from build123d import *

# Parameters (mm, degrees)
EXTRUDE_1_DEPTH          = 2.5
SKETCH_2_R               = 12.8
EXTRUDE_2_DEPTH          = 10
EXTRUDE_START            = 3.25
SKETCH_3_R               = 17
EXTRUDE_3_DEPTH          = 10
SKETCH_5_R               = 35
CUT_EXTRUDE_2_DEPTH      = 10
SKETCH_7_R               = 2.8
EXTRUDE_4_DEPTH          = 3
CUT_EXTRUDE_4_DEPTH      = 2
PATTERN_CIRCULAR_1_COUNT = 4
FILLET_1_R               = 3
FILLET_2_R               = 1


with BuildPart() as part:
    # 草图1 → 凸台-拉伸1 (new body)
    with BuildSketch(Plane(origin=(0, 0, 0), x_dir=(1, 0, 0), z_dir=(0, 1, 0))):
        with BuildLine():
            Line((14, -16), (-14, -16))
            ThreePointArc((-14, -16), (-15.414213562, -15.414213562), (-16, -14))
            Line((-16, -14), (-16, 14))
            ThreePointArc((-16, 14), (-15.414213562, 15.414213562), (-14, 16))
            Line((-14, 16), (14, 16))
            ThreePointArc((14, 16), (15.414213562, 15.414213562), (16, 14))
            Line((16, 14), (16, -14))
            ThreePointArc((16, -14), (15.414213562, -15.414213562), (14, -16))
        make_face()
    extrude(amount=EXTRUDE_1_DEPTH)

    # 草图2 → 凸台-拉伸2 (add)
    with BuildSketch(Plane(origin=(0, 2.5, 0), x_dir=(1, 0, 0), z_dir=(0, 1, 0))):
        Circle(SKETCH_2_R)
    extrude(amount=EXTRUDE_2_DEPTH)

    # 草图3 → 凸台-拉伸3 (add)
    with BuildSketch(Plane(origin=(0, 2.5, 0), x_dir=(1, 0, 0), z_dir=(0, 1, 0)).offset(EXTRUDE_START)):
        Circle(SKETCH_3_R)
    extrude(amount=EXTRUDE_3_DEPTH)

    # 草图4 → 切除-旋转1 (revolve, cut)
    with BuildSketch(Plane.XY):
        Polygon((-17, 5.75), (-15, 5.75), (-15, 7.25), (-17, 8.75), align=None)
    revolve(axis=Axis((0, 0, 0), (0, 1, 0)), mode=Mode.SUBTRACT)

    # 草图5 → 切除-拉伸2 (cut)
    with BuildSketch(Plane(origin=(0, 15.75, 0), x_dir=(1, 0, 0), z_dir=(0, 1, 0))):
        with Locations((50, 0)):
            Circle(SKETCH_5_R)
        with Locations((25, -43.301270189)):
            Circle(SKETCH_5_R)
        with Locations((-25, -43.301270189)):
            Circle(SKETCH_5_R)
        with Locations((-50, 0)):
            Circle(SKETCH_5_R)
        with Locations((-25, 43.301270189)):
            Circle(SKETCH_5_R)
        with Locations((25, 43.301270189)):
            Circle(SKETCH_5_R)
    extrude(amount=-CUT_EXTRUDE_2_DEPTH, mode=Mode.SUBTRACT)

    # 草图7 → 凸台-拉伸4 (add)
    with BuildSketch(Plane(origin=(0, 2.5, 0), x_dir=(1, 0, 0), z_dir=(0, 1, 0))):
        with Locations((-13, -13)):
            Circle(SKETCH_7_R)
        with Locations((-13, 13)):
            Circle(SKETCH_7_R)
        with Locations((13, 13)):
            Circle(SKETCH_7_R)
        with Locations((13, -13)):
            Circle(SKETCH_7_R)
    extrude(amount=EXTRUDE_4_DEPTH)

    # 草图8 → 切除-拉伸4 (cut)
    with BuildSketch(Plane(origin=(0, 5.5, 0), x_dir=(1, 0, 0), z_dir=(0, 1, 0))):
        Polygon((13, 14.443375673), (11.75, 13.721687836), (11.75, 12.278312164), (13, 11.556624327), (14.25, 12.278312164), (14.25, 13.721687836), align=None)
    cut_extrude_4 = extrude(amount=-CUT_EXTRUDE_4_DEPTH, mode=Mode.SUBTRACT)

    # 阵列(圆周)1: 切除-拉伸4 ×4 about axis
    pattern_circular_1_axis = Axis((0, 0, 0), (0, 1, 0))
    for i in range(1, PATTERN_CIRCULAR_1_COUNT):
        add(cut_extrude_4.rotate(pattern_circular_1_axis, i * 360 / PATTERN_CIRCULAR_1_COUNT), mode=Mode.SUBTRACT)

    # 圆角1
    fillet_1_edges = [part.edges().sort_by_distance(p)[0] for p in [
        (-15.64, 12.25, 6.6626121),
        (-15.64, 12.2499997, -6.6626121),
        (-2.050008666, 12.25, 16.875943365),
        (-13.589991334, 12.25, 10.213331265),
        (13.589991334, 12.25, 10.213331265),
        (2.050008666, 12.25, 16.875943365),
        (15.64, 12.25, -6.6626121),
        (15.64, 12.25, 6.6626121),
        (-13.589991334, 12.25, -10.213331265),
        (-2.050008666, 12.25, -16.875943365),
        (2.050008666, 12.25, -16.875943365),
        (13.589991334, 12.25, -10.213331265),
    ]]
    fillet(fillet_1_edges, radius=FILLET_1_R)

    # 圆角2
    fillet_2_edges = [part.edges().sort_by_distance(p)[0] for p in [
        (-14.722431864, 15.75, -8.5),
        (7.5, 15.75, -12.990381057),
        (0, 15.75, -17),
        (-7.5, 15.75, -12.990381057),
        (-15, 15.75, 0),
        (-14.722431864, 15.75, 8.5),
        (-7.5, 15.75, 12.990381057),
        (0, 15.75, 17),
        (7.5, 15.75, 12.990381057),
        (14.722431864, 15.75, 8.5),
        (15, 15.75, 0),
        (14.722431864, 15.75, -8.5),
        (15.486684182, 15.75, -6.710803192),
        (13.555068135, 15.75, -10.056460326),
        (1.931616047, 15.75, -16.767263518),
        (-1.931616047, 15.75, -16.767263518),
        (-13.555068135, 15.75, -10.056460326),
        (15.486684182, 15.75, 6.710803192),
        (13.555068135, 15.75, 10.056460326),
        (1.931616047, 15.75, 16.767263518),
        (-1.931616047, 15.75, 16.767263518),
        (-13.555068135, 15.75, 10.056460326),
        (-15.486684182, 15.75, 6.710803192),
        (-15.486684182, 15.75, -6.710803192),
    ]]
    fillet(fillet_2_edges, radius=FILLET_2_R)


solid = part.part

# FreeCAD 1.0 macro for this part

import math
import FreeCAD as App
import Part
import Sketcher
Q = App.Units.Quantity


def edges_at(feature, points):
    """Names of the edges that pass closest to the given points."""
    edges = feature.Shape.Edges
    near = lambda p: min(range(len(edges)), key=lambda i: edges[i].distToShape(Part.Vertex(*p))[0])
    return sorted({f"Edge{near(p) + 1}" for p in points})

doc = App.newDocument("Part")
body = doc.addObject("PartDesign::Body", "Body")

# Sketch on XZ plane
sketch1 = doc.addObject("Sketcher::SketchObject", "Sketch")
body.addObject(sketch1)
sketch1.AttachmentSupport = (doc.XZ_Plane, [""])
sketch1.MapMode = "FlatFace"
sketch1.addGeometry([
    Part.LineSegment(App.Vector(-14, 16, 0), App.Vector(14, 16, 0)),  # 0
    Part.ArcOfCircle(Part.Circle(App.Vector(14, 14, 0), App.Vector(0, 0, 1), 2), math.radians(0), math.radians(90)),  # 1
    Part.LineSegment(App.Vector(16, 14, 0), App.Vector(16, -14, 0)),  # 2
    Part.ArcOfCircle(Part.Circle(App.Vector(14, -14, 0), App.Vector(0, 0, 1), 2), math.radians(-90), math.radians(0)),  # 3
    Part.LineSegment(App.Vector(14, -16, 0), App.Vector(-14, -16, 0)),  # 4
    Part.ArcOfCircle(Part.Circle(App.Vector(-14, -14, 0), App.Vector(0, 0, 1), 2), math.radians(-180), math.radians(-90)),  # 5
    Part.LineSegment(App.Vector(-16, -14, 0), App.Vector(-16, 14, 0)),  # 6
    Part.ArcOfCircle(Part.Circle(App.Vector(-14, 14, 0), App.Vector(0, 0, 1), 2), math.radians(90), math.radians(180)),  # 7
], False)
sketch1.addConstraint([
    Sketcher.Constraint("Tangent", 0, 2, 1, 2),
    Sketcher.Constraint("Tangent", 1, 1, 2, 1),
    Sketcher.Constraint("Tangent", 2, 2, 3, 2),
    Sketcher.Constraint("Tangent", 3, 1, 4, 1),
    Sketcher.Constraint("Tangent", 4, 2, 5, 2),
    Sketcher.Constraint("Tangent", 5, 1, 6, 1),
    Sketcher.Constraint("Tangent", 6, 2, 7, 2),
    Sketcher.Constraint("Tangent", 7, 1, 0, 1),
    Sketcher.Constraint("Horizontal", 0),
    Sketcher.Constraint("Vertical", 2),
    Sketcher.Constraint("Horizontal", 4),
    Sketcher.Constraint("Vertical", 6),
    Sketcher.Constraint("Equal", 1, 3),
    Sketcher.Constraint("Equal", 3, 5),
    Sketcher.Constraint("Equal", 5, 7),
    Sketcher.Constraint("Symmetric", 1, 3, 5, 3, -1, 1),
    Sketcher.Constraint("Equal", 4, 2),
    Sketcher.Constraint("Radius", 1, 2.0),
    Sketcher.Constraint("DistanceX", 0, 1, 0, 2, 28.0),
])
pad1 = doc.addObject("PartDesign::Pad", "Pad")
body.addObject(pad1)
pad1.Profile = sketch1
pad1.Length = 2.5
pad1.Reversed = True

# Sketch on XZ plane
sketch2 = doc.addObject("Sketcher::SketchObject", "Sketch001")
body.addObject(sketch2)
sketch2.AttachmentSupport = (doc.XZ_Plane, [""])
sketch2.MapMode = "FlatFace"
sketch2.AttachmentOffset = App.Placement(App.Vector(0, 0, -2.5), App.Rotation())
sketch2.addGeometry(Part.Circle(App.Vector(0, 0, 0), App.Vector(0, 0, 1), 12.8), False)
sketch2.addConstraint([
    Sketcher.Constraint("Coincident", 0, 3, -1, 1),
    Sketcher.Constraint("Diameter", 0, 25.6),
])
pad2 = doc.addObject("PartDesign::Pad", "Pad001")
body.addObject(pad2)
pad2.Profile = sketch2
pad2.Length = 10
pad2.Reversed = True

# Sketch on XZ plane
sketch3 = doc.addObject("Sketcher::SketchObject", "Sketch002")
body.addObject(sketch3)
sketch3.AttachmentSupport = (doc.XZ_Plane, [""])
sketch3.MapMode = "FlatFace"
sketch3.AttachmentOffset = App.Placement(App.Vector(0, 0, -5.75), App.Rotation())
sketch3.addGeometry(Part.Circle(App.Vector(0, 0, 0), App.Vector(0, 0, 1), 17), False)
sketch3.addConstraint([
    Sketcher.Constraint("Coincident", 0, 3, -1, 1),
    Sketcher.Constraint("Diameter", 0, 34.0),
])
pad3 = doc.addObject("PartDesign::Pad", "Pad002")
body.addObject(pad3)
pad3.Profile = sketch3
pad3.Length = 10
pad3.Reversed = True

# Sketch on XY plane
sketch4 = doc.addObject("Sketcher::SketchObject", "Sketch003")
body.addObject(sketch4)
sketch4.AttachmentSupport = (doc.XY_Plane, [""])
sketch4.MapMode = "FlatFace"
sketch4.addGeometry([
    Part.LineSegment(App.Vector(-17, 5.75, 0), App.Vector(-15, 5.75, 0)),
    Part.LineSegment(App.Vector(-15, 5.75, 0), App.Vector(-15, 7.25, 0)),
    Part.LineSegment(App.Vector(-15, 7.25, 0), App.Vector(-17, 8.75, 0)),
    Part.LineSegment(App.Vector(-17, 8.75, 0), App.Vector(-17, 5.75, 0)),
], False)
sketch4.addConstraint([
    Sketcher.Constraint("Coincident", 0, 2, 1, 1),
    Sketcher.Constraint("Coincident", 1, 2, 2, 1),
    Sketcher.Constraint("Coincident", 2, 2, 3, 1),
    Sketcher.Constraint("Coincident", 3, 2, 0, 1),
    Sketcher.Constraint("Horizontal", 0),
    Sketcher.Constraint("Vertical", 1),
    Sketcher.Constraint("Vertical", 3),
    Sketcher.Constraint("DistanceX", 0, 1, 0, 2, 2.0),
    Sketcher.Constraint("DistanceY", 3, 2, 3, 1, 3.0),
    Sketcher.Constraint("DistanceY", 1, 1, 1, 2, 1.5),
    Sketcher.Constraint("DistanceX", 0, 2, -1, 1, 15.0),
    Sketcher.Constraint("DistanceY", -1, 1, 0, 2, 5.75),
])
groove = doc.addObject("PartDesign::Groove", "Groove")
body.addObject(groove)
groove.Profile = sketch4
groove.ReferenceAxis = (sketch4, ["V_Axis"])
groove.Angle = 360

# Sketch on XZ plane
sketch5 = doc.addObject("Sketcher::SketchObject", "Sketch004")
body.addObject(sketch5)
sketch5.AttachmentSupport = (doc.XZ_Plane, [""])
sketch5.MapMode = "FlatFace"
sketch5.AttachmentOffset = App.Placement(App.Vector(0, 0, -15.75), App.Rotation())
sketch5.addGeometry([
    Part.ArcOfCircle(Part.Circle(App.Vector(-25, -43.30127, 0), App.Vector(0, 0, 1), 35), math.radians(164.415309), math.radians(315.584691)),  # 0
    Part.ArcOfCircle(Part.Circle(App.Vector(-50, 0, 0), App.Vector(0, 0, 1), 35), math.radians(104.415309), math.radians(255.584691)),  # 1
    Part.ArcOfCircle(Part.Circle(App.Vector(-25, 43.30127, 0), App.Vector(0, 0, 1), 35), math.radians(44.415309), math.radians(195.584691)),  # 2
    Part.ArcOfCircle(Part.Circle(App.Vector(25, 43.30127, 0), App.Vector(0, 0, 1), 35), math.radians(-15.584691), math.radians(135.584691)),  # 3
    Part.ArcOfCircle(Part.Circle(App.Vector(50, 0, 0), App.Vector(0, 0, 1), 35), math.radians(-75.584691), math.radians(75.584691)),  # 4
    Part.ArcOfCircle(Part.Circle(App.Vector(25, -43.30127, 0), App.Vector(0, 0, 1), 35), math.radians(-135.584691), math.radians(15.584691)),  # 5
    Part.ArcOfCircle(Part.Circle(App.Vector(-25, -43.30127, 0), App.Vector(0, 0, 1), 35), math.radians(44.415309), math.radians(75.584691)),  # 6
    Part.ArcOfCircle(Part.Circle(App.Vector(25, -43.30127, 0), App.Vector(0, 0, 1), 35), math.radians(104.415309), math.radians(135.584691)),  # 7
    Part.ArcOfCircle(Part.Circle(App.Vector(50, 0, 0), App.Vector(0, 0, 1), 35), math.radians(164.415309), math.radians(195.584691)),  # 8
    Part.ArcOfCircle(Part.Circle(App.Vector(25, 43.30127, 0), App.Vector(0, 0, 1), 35), math.radians(-135.584691), math.radians(-104.415309)),  # 9
    Part.ArcOfCircle(Part.Circle(App.Vector(-25, 43.30127, 0), App.Vector(0, 0, 1), 35), math.radians(-75.584691), math.radians(-44.415309)),  # 10
    Part.ArcOfCircle(Part.Circle(App.Vector(-50, 0, 0), App.Vector(0, 0, 1), 35), math.radians(-15.584691), math.radians(15.584691)),  # 11
], False)
sketch5.addConstraint([
    Sketcher.Constraint("Coincident", 0, 1, 1, 2),
    Sketcher.Constraint("Coincident", 1, 1, 2, 2),
    Sketcher.Constraint("Coincident", 2, 1, 3, 2),
    Sketcher.Constraint("Coincident", 3, 1, 4, 2),
    Sketcher.Constraint("Coincident", 4, 1, 5, 2),
    Sketcher.Constraint("Coincident", 5, 1, 0, 2),
    Sketcher.Constraint("Coincident", 6, 1, 7, 2),
    Sketcher.Constraint("Coincident", 7, 1, 8, 2),
    Sketcher.Constraint("Coincident", 8, 1, 9, 2),
    Sketcher.Constraint("Coincident", 9, 1, 10, 2),
    Sketcher.Constraint("Coincident", 10, 1, 11, 2),
    Sketcher.Constraint("Coincident", 11, 1, 6, 2),
    Sketcher.Constraint("Coincident", 6, 3, 0, 3),
    Sketcher.Constraint("Coincident", 7, 3, 5, 3),
    Sketcher.Constraint("Coincident", 8, 3, 4, 3),
    Sketcher.Constraint("Coincident", 9, 3, 3, 3),
    Sketcher.Constraint("Coincident", 10, 3, 2, 3),
    Sketcher.Constraint("Coincident", 11, 3, 1, 3),
    Sketcher.Constraint("Equal", 0, 1),
    Sketcher.Constraint("Equal", 1, 2),
    Sketcher.Constraint("Equal", 2, 3),
    Sketcher.Constraint("Equal", 3, 4),
    Sketcher.Constraint("Equal", 4, 5),
    Sketcher.Constraint("Equal", 5, 6),
    Sketcher.Constraint("Equal", 6, 7),
    Sketcher.Constraint("Equal", 7, 8),
    Sketcher.Constraint("Equal", 8, 9),
    Sketcher.Constraint("Equal", 9, 10),
    Sketcher.Constraint("Equal", 10, 11),
    Sketcher.Constraint("Symmetric", 0, 3, 3, 3, -1, 1),
    Sketcher.Constraint("Symmetric", 1, 3, 4, 3, -1, 1),
    Sketcher.Constraint("Symmetric", 2, 3, 5, 3, -1, 1),
    Sketcher.Constraint("Symmetric", 2, 3, 3, 3, -2),
    Sketcher.Constraint("PointOnObject", 1, 3, -1),
    Sketcher.Constraint("Radius", 0, 35.0),
    Sketcher.Constraint("DistanceX", 0, 3, -1, 1, 25.0),
    Sketcher.Constraint("DistanceX", 1, 3, -1, 1, 50.0),
    Sketcher.Constraint("DistanceY", 0, 3, -1, 1, 43.30127),
])
pocket1 = doc.addObject("PartDesign::Pocket", "Pocket")
body.addObject(pocket1)
pocket1.Profile = sketch5
pocket1.Length = 10
pocket1.Reversed = True

# Sketch on XZ plane
sketch6 = doc.addObject("Sketcher::SketchObject", "Sketch005")
body.addObject(sketch6)
sketch6.AttachmentSupport = (doc.XZ_Plane, [""])
sketch6.MapMode = "FlatFace"
sketch6.AttachmentOffset = App.Placement(App.Vector(0, 0, -2.5), App.Rotation())
sketch6.addGeometry([
    Part.Circle(App.Vector(-13, 13, 0), App.Vector(0, 0, 1), 2.8),
    Part.Circle(App.Vector(-13, -13, 0), App.Vector(0, 0, 1), 2.8),
    Part.Circle(App.Vector(13, -13, 0), App.Vector(0, 0, 1), 2.8),
    Part.Circle(App.Vector(13, 13, 0), App.Vector(0, 0, 1), 2.8),
], False)
sketch6.addConstraint([
    Sketcher.Constraint("Equal", 0, 1),
    Sketcher.Constraint("Equal", 1, 2),
    Sketcher.Constraint("Equal", 2, 3),
    Sketcher.Constraint("Symmetric", 0, 3, 2, 3, -1, 1),
    Sketcher.Constraint("Symmetric", 1, 3, 3, 3, -1, 1),
    Sketcher.Constraint("Symmetric", 1, 3, 2, 3, -2),
    Sketcher.Constraint("Diameter", 0, 5.6),
    Sketcher.Constraint("DistanceX", 0, 3, -1, 1, 13.0),
    Sketcher.Constraint("DistanceY", -1, 1, 0, 3, 13.0),
])
pad4 = doc.addObject("PartDesign::Pad", "Pad003")
body.addObject(pad4)
pad4.Profile = sketch6
pad4.Length = 3
pad4.Reversed = True

# Sketch on XZ plane
sketch7 = doc.addObject("Sketcher::SketchObject", "Sketch006")
body.addObject(sketch7)
sketch7.AttachmentSupport = (doc.XZ_Plane, [""])
sketch7.MapMode = "FlatFace"
sketch7.AttachmentOffset = App.Placement(App.Vector(0, 0, -5.5), App.Rotation())
sketch7.addGeometry([
    Part.LineSegment(App.Vector(13, -14.443376, 0), App.Vector(11.75, -13.721688, 0)),  # 0
    Part.LineSegment(App.Vector(11.75, -13.721688, 0), App.Vector(11.75, -12.278312, 0)),  # 1
    Part.LineSegment(App.Vector(11.75, -12.278312, 0), App.Vector(13, -11.556624, 0)),  # 2
    Part.LineSegment(App.Vector(13, -11.556624, 0), App.Vector(14.25, -12.278312, 0)),  # 3
    Part.LineSegment(App.Vector(14.25, -12.278312, 0), App.Vector(14.25, -13.721688, 0)),  # 4
    Part.LineSegment(App.Vector(14.25, -13.721688, 0), App.Vector(13, -14.443376, 0)),  # 5
], False)
sketch7.addConstraint([
    Sketcher.Constraint("Coincident", 0, 2, 1, 1),
    Sketcher.Constraint("Coincident", 1, 2, 2, 1),
    Sketcher.Constraint("Coincident", 2, 2, 3, 1),
    Sketcher.Constraint("Coincident", 3, 2, 4, 1),
    Sketcher.Constraint("Coincident", 4, 2, 5, 1),
    Sketcher.Constraint("Coincident", 5, 2, 0, 1),
    Sketcher.Constraint("Vertical", 1),
    Sketcher.Constraint("Vertical", 4),
    Sketcher.Constraint("Parallel", 0, 3),
    Sketcher.Constraint("Parallel", 2, 5),
    Sketcher.Constraint("Horizontal", 1, 2, 3, 2),
    Sketcher.Constraint("Horizontal", 0, 2, 4, 2),
    Sketcher.Constraint("Vertical", 2, 2, 5, 2),
    Sketcher.Constraint("Angle", 0, Q("150 deg")),
    Sketcher.Constraint("DistanceX", -1, 1, 2, 2, 13.0),
    Sketcher.Constraint("DistanceX", 1, 2, 3, 2, 2.5),
    Sketcher.Constraint("DistanceY", 1, 1, 1, 2, 1.443376),
    Sketcher.Constraint("DistanceY", 0, 2, -1, 1, 13.721688),
])
pocket2 = doc.addObject("PartDesign::Pocket", "Pocket001")
body.addObject(pocket2)
pocket2.Profile = sketch7
pocket2.Length = 2
pocket2.Reversed = True
doc.recompute()

polarpattern = doc.addObject("PartDesign::PolarPattern", "PolarPattern")
body.addObject(polarpattern)
polarpattern.Originals = [pocket2]
polarpattern.Axis = (doc.Y_Axis, [""])
polarpattern.Angle = 360
polarpattern.Occurrences = 4
body.Tip = polarpattern
doc.recompute()

fillet = doc.addObject("PartDesign::Fillet", "Fillet")
body.addObject(fillet)
fillet.Base = (polarpattern, edges_at(polarpattern, [
    (-15.64, 12.25, 6.663),
    (-15.64, 12.25, -6.663),
    (-2.05, 12.25, 16.876),
    (-13.59, 12.25, 10.213),
    (13.59, 12.25, 10.213),
    (2.05, 12.25, 16.876),
    (15.64, 12.25, -6.663),
    (15.64, 12.25, 6.663),
    (-13.59, 12.25, -10.213),
    (-2.05, 12.25, -16.876),
    (2.05, 12.25, -16.876),
    (13.59, 12.25, -10.213),
]))
fillet.Radius = 3
doc.recompute()

fillet2 = doc.addObject("PartDesign::Fillet", "Fillet001")
body.addObject(fillet2)
fillet2.Base = (fillet, edges_at(fillet, [
    (-14.722, 15.75, -8.5),
    (7.5, 15.75, -12.99),
    (0, 15.75, -17),
    (-7.5, 15.75, -12.99),
    (-15, 15.75, 0),
    (-14.722, 15.75, 8.5),
    (-7.5, 15.75, 12.99),
    (0, 15.75, 17),
    (7.5, 15.75, 12.99),
    (14.722, 15.75, 8.5),
    (15, 15.75, 0),
    (14.722, 15.75, -8.5),
    (15.487, 15.75, -6.711),
    (13.555, 15.75, -10.056),
    (1.932, 15.75, -16.767),
    (-1.932, 15.75, -16.767),
    (-13.555, 15.75, -10.056),
    (15.487, 15.75, 6.711),
    (13.555, 15.75, 10.056),
    (1.932, 15.75, 16.767),
    (-1.932, 15.75, 16.767),
    (-13.555, 15.75, 10.056),
    (-15.487, 15.75, 6.711),
    (-15.487, 15.75, -6.711),
]))
fillet2.Radius = 1

doc.recompute()
